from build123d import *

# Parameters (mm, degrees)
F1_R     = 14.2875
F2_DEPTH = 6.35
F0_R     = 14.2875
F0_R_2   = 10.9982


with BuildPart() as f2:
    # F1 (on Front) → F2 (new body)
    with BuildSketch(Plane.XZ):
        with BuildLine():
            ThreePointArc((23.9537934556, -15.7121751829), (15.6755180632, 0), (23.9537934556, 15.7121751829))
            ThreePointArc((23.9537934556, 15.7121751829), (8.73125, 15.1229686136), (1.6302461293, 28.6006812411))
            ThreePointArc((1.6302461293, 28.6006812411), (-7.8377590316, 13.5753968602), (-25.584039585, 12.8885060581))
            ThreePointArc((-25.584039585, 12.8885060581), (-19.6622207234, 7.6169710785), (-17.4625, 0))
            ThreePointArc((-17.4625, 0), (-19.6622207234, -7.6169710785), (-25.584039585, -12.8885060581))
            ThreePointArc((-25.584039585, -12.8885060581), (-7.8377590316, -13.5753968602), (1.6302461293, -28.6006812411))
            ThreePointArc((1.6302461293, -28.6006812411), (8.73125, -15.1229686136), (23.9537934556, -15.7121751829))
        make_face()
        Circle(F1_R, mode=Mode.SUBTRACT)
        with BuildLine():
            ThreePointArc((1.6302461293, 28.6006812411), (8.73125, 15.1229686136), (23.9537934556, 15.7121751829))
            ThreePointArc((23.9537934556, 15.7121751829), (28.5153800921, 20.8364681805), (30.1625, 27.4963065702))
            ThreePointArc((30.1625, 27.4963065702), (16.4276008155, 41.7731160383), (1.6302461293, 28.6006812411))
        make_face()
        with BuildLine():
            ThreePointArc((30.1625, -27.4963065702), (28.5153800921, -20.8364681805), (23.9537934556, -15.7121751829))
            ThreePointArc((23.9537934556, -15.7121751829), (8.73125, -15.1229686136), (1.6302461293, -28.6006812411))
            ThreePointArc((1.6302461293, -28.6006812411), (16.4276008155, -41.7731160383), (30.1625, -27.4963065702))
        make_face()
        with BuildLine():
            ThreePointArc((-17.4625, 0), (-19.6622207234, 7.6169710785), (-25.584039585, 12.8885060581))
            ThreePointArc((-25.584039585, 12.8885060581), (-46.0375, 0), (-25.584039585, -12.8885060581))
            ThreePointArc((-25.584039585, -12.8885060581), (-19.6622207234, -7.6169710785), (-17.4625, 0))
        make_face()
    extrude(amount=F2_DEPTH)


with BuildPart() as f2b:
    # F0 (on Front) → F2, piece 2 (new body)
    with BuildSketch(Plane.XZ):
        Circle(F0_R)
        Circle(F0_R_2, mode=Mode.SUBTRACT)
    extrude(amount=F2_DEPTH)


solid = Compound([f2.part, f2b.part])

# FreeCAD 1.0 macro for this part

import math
import FreeCAD as App
import Part
import Sketcher
from FreeCAD import Vector
Q = App.Units.Quantity

doc = App.newDocument("Part")
body = doc.addObject("PartDesign::Body", "Body")

# Sketch on XZ plane
sketch1 = body.newObject("Sketcher::SketchObject", "Sketch")
sketch1.AttachmentSupport = (doc.getObject("XZ_Plane"), [""])
sketch1.MapMode = "FlatFace"
sketch1.addGeometry([
    Part.ArcOfCircle(Part.Circle(Vector(35, 0, 0), Vector(0, 0, 1), 19), math.radians(124), math.radians(236)),  # 0
    Part.ArcOfCircle(Part.Circle(Vector(16, 27, 0), Vector(0, 0, 1), 14), math.radians(-56), math.radians(0)),  # 1
    Part.ArcOfCircle(Part.Circle(Vector(16, 27, 0), Vector(0, 0, 1), 14), math.radians(0), math.radians(176)),  # 2
    Part.ArcOfCircle(Part.Circle(Vector(-17, 30, 0), Vector(0, 0, 1), 19), math.radians(-116), math.radians(-4)),  # 3
    Part.ArcOfCircle(Part.Circle(Vector(-32, 0, 0), Vector(0, 0, 1), 14), math.radians(64), math.radians(296)),  # 4
    Part.ArcOfCircle(Part.Circle(Vector(-17, -30, 0), Vector(0, 0, 1), 19), math.radians(4), math.radians(116)),  # 5
    Part.ArcOfCircle(Part.Circle(Vector(16, -27, 0), Vector(0, 0, 1), 14), math.radians(-176), math.radians(0)),  # 6
    Part.ArcOfCircle(Part.Circle(Vector(16, -27, 0), Vector(0, 0, 1), 14), math.radians(0), math.radians(56)),  # 7
    Part.Circle(Vector(0, 0, 0), Vector(0, 0, 1), 14),  # 8
], False)
sketch1.addConstraint([
    Sketcher.Constraint("Tangent", 0, 1, 1, 1),
    Sketcher.Constraint("Tangent", 1, 2, 2, 1),
    Sketcher.Constraint("Tangent", 2, 2, 3, 2),
    Sketcher.Constraint("Tangent", 3, 1, 4, 1),
    Sketcher.Constraint("Tangent", 4, 2, 5, 2),
    Sketcher.Constraint("Tangent", 5, 1, 6, 1),
    Sketcher.Constraint("Tangent", 6, 2, 7, 1),
    Sketcher.Constraint("Tangent", 7, 2, 0, 2),
    Sketcher.Constraint("Coincident", 8, 3, -1, 1),
    Sketcher.Constraint("Equal", 1, 2),
    Sketcher.Constraint("Equal", 0, 3),
    Sketcher.Constraint("Equal", 2, 4),
    Sketcher.Constraint("Equal", 3, 5),
    Sketcher.Constraint("Equal", 4, 6),
    Sketcher.Constraint("Equal", 6, 7),
    Sketcher.Constraint("Equal", 7, 8),
    Sketcher.Constraint("Symmetric", 3, 3, 5, 3, -1),
    Sketcher.Constraint("Symmetric", 1, 2, 6, 2, -1),
    Sketcher.Constraint("Horizontal", 2, 3, 1, 2),
    Sketcher.Constraint("Radius", 0, Q("0.75 in")),
    Sketcher.Constraint("Diameter", 8, Q("1.125 in")),
    Sketcher.Constraint("DistanceX", 4, 3, -1, 1, Q("1.25 in")),
    Sketcher.Constraint("DistanceX", -1, 1, 1, 3, Q("0.625 in")),
    Sketcher.Constraint("DistanceY", 2, 2, 3, 3, 1.4725),
])
pad1 = body.newObject("PartDesign::Pad", "Pad")
pad1.Profile = sketch1
pad1.Length = Q("0.25 in")
body2 = doc.addObject("PartDesign::Body", "Body001")

# Sketch on XZ plane
sketch2 = body2.newObject("Sketcher::SketchObject", "Sketch001")
sketch2.AttachmentSupport = (doc.getObject("XZ_Plane001"), [""])
sketch2.MapMode = "FlatFace"
sketch2.addGeometry([
    Part.Circle(Vector(0, 0, 0), Vector(0, 0, 1), 14),
    Part.Circle(Vector(0, 0, 0), Vector(0, 0, 1), 11),
], False)
sketch2.addConstraint([
    Sketcher.Constraint("Coincident", 0, 3, -1, 1),
    Sketcher.Constraint("Coincident", 1, 3, -1, 1),
    Sketcher.Constraint("Diameter", 0, Q("1.125 in")),
    Sketcher.Constraint("Diameter", 1, Q("0.866 in")),
])
pad2 = body2.newObject("PartDesign::Pad", "Pad001")
pad2.Profile = sketch2
pad2.Length = Q("0.25 in")

doc.recompute()
